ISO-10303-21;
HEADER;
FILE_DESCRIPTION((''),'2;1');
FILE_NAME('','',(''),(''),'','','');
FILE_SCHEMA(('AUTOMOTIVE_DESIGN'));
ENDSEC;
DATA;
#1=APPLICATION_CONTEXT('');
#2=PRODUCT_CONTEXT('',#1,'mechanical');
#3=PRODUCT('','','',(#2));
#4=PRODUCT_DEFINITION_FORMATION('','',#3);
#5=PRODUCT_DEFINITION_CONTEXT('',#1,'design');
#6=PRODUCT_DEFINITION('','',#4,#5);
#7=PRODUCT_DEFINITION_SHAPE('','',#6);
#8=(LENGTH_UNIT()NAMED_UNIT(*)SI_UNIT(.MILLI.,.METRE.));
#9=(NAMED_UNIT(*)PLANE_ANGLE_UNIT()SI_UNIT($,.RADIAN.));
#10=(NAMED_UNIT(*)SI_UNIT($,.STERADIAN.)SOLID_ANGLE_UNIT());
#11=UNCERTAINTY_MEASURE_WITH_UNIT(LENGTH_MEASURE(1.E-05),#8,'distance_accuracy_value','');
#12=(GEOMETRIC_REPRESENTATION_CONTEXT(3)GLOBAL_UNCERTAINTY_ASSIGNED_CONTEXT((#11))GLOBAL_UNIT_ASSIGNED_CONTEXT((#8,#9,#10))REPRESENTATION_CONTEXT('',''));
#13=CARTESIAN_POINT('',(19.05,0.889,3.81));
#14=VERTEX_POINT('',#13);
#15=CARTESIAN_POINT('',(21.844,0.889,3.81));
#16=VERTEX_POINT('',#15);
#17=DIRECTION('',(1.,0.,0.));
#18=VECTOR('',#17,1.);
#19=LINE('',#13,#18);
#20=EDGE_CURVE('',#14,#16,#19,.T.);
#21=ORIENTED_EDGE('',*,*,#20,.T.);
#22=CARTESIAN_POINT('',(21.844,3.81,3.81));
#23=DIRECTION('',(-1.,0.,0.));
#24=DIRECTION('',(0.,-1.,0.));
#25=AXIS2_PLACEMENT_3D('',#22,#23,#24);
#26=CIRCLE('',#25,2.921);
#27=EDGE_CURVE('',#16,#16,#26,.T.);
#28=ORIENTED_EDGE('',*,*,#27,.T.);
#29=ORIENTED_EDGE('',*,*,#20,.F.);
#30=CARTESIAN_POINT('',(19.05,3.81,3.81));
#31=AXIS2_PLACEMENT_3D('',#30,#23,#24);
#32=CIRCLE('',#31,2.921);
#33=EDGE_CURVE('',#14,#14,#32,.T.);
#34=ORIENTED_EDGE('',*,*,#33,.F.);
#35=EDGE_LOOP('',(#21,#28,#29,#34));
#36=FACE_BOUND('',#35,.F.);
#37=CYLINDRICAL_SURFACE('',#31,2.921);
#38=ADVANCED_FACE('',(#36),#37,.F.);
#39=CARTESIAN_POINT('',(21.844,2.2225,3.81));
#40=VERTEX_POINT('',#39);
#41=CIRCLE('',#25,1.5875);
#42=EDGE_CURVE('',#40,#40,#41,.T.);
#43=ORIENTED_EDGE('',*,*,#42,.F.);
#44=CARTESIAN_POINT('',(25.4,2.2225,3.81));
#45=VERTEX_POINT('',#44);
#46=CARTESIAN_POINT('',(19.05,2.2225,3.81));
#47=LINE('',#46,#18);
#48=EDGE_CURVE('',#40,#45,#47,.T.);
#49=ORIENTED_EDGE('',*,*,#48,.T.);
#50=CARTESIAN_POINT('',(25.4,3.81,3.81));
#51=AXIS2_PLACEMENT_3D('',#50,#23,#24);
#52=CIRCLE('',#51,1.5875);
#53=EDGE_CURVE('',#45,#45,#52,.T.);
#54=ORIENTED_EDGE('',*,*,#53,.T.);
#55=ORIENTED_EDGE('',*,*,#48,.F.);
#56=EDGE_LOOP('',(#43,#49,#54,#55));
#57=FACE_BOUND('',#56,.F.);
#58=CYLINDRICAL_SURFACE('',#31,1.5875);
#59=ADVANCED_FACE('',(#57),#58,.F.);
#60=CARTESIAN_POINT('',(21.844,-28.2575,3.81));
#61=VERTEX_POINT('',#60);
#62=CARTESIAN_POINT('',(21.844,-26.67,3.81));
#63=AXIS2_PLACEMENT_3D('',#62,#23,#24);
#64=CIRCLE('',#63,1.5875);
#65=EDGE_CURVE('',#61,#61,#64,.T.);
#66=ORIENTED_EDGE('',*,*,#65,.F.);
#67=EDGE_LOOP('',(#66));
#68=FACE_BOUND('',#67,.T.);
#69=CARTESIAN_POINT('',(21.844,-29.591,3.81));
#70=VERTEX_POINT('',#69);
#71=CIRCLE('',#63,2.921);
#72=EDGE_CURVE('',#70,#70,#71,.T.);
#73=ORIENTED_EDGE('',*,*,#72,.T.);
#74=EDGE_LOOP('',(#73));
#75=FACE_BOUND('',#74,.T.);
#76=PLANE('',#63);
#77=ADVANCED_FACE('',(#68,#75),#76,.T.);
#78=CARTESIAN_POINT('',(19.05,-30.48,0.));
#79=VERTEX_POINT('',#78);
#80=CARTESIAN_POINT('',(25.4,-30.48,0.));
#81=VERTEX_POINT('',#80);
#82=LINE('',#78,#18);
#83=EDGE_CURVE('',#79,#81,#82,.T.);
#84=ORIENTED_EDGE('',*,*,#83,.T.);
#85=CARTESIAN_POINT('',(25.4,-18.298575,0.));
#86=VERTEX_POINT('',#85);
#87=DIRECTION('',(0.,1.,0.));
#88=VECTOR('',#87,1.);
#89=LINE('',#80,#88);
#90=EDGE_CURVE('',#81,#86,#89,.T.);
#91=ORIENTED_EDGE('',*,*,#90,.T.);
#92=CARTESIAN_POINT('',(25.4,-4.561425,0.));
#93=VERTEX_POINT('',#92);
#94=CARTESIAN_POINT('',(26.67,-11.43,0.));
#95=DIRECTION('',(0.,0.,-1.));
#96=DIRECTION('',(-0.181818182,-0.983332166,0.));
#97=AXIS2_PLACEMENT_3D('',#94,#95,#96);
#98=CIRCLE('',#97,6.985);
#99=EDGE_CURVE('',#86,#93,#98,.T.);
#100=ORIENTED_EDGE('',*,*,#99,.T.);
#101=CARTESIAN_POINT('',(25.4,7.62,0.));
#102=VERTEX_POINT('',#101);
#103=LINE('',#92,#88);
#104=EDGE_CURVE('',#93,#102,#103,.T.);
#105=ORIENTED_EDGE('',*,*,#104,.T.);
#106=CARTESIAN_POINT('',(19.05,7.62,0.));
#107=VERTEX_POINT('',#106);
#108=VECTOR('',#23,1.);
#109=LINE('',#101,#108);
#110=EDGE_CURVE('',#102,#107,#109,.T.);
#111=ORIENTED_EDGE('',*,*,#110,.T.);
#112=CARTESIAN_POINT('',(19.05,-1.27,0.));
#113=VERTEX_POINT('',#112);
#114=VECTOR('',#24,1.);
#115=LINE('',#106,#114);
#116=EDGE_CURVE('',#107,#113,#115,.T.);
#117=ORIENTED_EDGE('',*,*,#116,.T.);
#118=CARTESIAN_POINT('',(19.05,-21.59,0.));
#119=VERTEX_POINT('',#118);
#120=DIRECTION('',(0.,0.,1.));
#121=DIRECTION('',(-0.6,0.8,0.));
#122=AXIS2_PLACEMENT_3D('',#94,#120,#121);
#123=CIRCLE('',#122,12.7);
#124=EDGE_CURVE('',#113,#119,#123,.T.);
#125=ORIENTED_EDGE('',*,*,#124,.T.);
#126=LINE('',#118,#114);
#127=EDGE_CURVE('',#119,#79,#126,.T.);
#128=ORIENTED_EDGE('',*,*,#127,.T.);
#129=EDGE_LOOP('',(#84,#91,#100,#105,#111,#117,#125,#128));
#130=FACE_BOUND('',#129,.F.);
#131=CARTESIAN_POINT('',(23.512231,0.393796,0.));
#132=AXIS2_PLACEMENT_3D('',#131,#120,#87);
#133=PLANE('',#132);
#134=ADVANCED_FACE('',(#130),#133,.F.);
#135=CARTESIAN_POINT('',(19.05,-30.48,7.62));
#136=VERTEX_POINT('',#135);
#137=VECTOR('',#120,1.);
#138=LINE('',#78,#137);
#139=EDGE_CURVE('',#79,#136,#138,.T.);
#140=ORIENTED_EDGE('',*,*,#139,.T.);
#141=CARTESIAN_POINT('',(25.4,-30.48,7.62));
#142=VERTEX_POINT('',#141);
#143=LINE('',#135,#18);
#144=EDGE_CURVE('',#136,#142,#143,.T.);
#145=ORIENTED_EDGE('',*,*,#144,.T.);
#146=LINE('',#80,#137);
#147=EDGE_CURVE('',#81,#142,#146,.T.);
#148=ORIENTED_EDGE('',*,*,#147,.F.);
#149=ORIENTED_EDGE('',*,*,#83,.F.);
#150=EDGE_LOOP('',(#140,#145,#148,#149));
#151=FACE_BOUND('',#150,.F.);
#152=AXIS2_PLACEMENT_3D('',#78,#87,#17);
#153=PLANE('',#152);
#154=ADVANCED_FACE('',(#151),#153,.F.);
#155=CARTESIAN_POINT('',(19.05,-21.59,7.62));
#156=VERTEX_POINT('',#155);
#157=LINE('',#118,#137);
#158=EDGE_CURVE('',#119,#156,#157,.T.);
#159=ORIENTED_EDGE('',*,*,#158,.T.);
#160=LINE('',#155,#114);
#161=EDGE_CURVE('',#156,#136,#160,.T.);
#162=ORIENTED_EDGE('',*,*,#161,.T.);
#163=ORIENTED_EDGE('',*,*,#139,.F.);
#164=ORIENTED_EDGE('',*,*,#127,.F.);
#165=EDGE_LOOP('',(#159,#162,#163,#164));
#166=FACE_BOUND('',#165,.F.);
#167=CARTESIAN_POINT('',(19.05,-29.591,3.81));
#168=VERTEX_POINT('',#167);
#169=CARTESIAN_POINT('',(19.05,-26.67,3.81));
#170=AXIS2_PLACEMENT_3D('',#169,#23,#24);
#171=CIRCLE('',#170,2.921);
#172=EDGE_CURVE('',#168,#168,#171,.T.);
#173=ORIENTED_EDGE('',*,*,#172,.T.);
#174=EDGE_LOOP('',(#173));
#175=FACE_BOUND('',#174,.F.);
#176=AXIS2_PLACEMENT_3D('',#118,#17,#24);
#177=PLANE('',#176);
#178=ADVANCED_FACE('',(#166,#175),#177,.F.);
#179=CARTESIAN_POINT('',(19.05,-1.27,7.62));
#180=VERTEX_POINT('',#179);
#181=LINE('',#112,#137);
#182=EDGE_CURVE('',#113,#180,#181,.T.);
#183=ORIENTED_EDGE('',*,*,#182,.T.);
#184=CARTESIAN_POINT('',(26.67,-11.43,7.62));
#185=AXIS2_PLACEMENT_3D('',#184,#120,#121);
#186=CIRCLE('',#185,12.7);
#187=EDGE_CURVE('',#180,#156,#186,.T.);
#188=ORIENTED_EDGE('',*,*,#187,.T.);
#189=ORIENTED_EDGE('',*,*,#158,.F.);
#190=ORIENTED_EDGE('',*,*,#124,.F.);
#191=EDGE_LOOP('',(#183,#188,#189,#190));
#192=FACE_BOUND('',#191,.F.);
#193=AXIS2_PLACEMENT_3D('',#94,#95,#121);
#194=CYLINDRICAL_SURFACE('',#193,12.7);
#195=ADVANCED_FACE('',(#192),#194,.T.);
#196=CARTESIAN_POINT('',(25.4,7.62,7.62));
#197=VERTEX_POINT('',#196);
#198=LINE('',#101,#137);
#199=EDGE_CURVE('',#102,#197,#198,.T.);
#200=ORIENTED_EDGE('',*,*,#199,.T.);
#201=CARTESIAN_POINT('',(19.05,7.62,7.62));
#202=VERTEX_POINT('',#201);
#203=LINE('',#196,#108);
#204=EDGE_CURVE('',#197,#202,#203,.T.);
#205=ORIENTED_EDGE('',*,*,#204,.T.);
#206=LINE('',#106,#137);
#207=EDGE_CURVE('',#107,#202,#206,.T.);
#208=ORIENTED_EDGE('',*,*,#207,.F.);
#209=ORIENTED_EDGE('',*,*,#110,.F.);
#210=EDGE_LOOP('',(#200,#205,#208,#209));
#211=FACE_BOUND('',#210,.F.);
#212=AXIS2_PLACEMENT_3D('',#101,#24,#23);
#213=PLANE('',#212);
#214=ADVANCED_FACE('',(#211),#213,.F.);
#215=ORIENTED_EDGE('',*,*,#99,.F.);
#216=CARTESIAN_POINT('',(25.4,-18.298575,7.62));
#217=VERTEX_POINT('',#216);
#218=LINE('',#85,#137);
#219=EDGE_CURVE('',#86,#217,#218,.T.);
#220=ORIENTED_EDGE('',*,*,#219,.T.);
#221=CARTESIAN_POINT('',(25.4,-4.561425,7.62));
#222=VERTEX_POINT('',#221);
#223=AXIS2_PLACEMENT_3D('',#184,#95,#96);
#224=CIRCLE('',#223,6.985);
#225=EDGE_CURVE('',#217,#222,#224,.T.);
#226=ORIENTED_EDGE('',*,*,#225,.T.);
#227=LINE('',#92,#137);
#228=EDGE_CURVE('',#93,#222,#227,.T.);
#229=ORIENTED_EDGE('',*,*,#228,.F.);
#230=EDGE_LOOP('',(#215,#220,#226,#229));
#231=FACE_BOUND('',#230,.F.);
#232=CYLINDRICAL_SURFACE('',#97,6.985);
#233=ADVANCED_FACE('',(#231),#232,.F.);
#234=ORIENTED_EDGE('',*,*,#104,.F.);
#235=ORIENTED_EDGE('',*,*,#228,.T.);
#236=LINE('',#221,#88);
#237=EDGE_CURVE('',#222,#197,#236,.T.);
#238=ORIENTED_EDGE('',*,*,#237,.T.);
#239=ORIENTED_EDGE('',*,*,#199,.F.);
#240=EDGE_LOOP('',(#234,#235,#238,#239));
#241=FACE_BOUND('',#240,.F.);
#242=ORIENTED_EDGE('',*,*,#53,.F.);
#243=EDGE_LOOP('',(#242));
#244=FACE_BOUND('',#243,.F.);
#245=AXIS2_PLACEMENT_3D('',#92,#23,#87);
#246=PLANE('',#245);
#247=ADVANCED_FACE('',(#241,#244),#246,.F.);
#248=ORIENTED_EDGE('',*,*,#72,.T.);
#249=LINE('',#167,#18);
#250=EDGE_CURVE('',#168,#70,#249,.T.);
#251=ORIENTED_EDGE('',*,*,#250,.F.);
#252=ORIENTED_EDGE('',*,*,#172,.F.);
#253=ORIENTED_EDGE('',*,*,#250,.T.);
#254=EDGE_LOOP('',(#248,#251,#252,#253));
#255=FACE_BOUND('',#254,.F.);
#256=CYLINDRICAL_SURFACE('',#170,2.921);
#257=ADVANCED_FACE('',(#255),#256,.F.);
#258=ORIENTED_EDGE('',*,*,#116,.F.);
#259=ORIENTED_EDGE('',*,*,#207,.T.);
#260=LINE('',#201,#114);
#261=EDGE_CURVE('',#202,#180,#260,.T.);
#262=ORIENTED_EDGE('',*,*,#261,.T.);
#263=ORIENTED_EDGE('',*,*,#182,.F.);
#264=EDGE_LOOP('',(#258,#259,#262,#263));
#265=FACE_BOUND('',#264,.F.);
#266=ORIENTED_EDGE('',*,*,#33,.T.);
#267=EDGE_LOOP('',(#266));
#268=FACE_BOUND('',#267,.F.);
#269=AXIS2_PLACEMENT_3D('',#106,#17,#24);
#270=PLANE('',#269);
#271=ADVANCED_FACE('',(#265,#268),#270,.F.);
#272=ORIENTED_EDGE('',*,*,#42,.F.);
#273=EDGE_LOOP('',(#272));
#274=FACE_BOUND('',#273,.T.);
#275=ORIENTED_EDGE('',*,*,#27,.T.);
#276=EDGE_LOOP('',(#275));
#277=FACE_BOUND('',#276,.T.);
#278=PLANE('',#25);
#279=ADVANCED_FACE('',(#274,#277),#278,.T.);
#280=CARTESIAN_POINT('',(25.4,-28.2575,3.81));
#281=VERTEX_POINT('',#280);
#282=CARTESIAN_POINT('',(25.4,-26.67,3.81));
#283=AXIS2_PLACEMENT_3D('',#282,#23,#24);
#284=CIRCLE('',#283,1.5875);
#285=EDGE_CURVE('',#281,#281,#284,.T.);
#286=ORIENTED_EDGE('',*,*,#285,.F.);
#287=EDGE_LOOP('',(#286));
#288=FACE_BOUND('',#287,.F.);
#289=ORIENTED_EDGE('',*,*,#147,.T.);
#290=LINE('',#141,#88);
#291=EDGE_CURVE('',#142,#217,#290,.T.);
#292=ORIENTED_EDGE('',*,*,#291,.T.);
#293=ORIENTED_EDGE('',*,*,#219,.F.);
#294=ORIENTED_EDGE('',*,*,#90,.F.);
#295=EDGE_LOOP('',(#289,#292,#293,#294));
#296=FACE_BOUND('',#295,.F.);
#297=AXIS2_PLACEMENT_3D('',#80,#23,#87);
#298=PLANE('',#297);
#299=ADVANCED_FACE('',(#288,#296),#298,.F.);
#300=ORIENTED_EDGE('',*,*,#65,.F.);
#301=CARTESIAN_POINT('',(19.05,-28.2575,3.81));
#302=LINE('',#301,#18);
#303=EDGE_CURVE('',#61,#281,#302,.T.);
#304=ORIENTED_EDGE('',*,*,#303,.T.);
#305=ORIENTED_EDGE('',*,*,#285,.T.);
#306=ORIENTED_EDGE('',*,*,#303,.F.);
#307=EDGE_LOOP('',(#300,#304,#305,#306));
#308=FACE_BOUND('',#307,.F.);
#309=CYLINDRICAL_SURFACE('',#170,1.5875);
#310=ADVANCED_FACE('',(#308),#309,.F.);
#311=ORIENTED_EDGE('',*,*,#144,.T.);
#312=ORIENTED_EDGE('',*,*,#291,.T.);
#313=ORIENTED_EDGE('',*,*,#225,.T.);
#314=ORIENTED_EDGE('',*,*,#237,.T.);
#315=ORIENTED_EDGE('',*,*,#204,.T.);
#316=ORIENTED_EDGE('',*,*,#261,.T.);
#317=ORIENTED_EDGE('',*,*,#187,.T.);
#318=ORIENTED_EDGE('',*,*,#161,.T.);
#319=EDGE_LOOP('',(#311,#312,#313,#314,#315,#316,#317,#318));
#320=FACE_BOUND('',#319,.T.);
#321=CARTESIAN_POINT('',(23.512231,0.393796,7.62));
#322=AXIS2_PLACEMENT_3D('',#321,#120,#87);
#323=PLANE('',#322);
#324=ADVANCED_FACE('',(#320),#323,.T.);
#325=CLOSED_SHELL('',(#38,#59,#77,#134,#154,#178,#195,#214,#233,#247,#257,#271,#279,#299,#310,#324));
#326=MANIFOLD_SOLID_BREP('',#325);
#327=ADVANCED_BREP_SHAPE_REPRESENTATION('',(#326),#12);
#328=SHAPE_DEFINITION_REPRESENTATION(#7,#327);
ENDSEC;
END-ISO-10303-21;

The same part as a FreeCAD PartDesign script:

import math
import FreeCAD as App
import Part
import Sketcher

V = App.Vector
Q = App.Units.Quantity

doc = App.newDocument("Part")
body = doc.addObject("PartDesign::Body", "Body")

# Sketch on XY plane
sketch1 = body.newObject("Sketcher::SketchObject", "Sketch")
sketch1.AttachmentSupport = (doc.getObject("XY_Plane"), [""])
sketch1.MapMode = "FlatFace"
sketch1.addGeometry([
    Part.LineSegment(V(19.05, 1.27, 0), V(19.05, 7.62, 0)),  # 0
    Part.LineSegment(V(19.05, 7.62, 0), V(10.16, 7.62, 0)),  # 1
    Part.ArcOfCircle(Part.Circle(V(0, 0, 0), V(0, 0, 1), 12.7), math.radians(36.869898), math.radians(143.130102)),  # 2
    Part.LineSegment(V(-10.16, 7.62, 0), V(-19.05, 7.62, 0)),  # 3
    Part.LineSegment(V(-19.05, 7.62, 0), V(-19.05, 1.27, 0)),  # 4
    Part.LineSegment(V(-19.05, 1.27, 0), V(-6.868575, 1.27, 0)),  # 5
    Part.ArcOfCircle(Part.Circle(V(0, 0, 0), V(0, 0, 1), 6.985), math.radians(10.475682), math.radians(169.524318)),  # 6
    Part.LineSegment(V(6.868575, 1.27, 0), V(19.05, 1.27, 0)),  # 7
], False)
sketch1.addConstraint([
    Sketcher.Constraint("Coincident", 0, 2, 1, 1),
    Sketcher.Constraint("Coincident", 1, 2, 2, 1),
    Sketcher.Constraint("Coincident", 2, 2, 3, 1),
    Sketcher.Constraint("Coincident", 3, 2, 4, 1),
    Sketcher.Constraint("Coincident", 4, 2, 5, 1),
    Sketcher.Constraint("Coincident", 5, 2, 6, 2),
    Sketcher.Constraint("Coincident", 6, 1, 7, 1),
    Sketcher.Constraint("Coincident", 7, 2, 0, 1),
    Sketcher.Constraint("Vertical", 0),
    Sketcher.Constraint("Horizontal", 1),
    Sketcher.Constraint("Horizontal", 3),
    Sketcher.Constraint("Vertical", 4),
    Sketcher.Constraint("Horizontal", 5),
    Sketcher.Constraint("Horizontal", 7),
    Sketcher.Constraint("Coincident", 2, 3, -1, 1),
    Sketcher.Constraint("Coincident", 6, 3, -1, 1),
    Sketcher.Constraint("Symmetric", 0, 2, 3, 2, -2),
    Sketcher.Constraint("Horizontal", 5, 2, 6, 1),
    Sketcher.Constraint("Radius", 2, Q("0.5 in")),
    Sketcher.Constraint("Radius", 6, Q("0.275 in")),
    Sketcher.Constraint("DistanceX", 1, 2, 1, 1, Q("0.35 in")),
    Sketcher.Constraint("DistanceY", 0, 1, 0, 2, Q("0.25 in")),
    Sketcher.Constraint("DistanceY", -1, 1, 0, 2, Q("0.3 in")),
])
pad1 = body.newObject("PartDesign::Pad", "Pad")
pad1.Profile = sketch1
pad1.Length = Q("0.3 in")

# Sketch on XZ plane
sketch2 = body.newObject("Sketcher::SketchObject", "Sketch001")
sketch2.AttachmentSupport = (doc.getObject("XZ_Plane"), [""])
sketch2.MapMode = "FlatFace"
sketch2.AttachmentOffset = App.Placement(V(0, 0, -0.3 * 25.4), App.Rotation())
sketch2.addGeometry([
    Part.Circle(V(15.24, 3.81, 0), V(0, 0, 1), 1.5875),
    Part.Circle(V(-15.24, 3.81, 0), V(0, 0, 1), 1.5875),
], False)
sketch2.addConstraint([
    Sketcher.Constraint("Equal", 0, 1),
    Sketcher.Constraint("Symmetric", 0, 3, 1, 3, -2),
    Sketcher.Constraint("Diameter", 0, Q("0.125 in")),
    Sketcher.Constraint("DistanceX", -1, 1, 0, 3, Q("0.6 in")),
    Sketcher.Constraint("DistanceY", -1, 1, 0, 3, Q("0.15 in")),
])
pocket1 = body.newObject("PartDesign::Pocket", "Pocket")
pocket1.Profile = sketch2
pocket1.Length = Q("1 in")
pocket1.Reversed = True

# Sketch on XZ plane
sketch3 = body.newObject("Sketcher::SketchObject", "Sketch002")
sketch3.AttachmentSupport = (doc.getObject("XZ_Plane"), [""])
sketch3.MapMode = "FlatFace"
sketch3.AttachmentOffset = App.Placement(V(0, 0, -0.3 * 25.4), App.Rotation())
sketch3.addGeometry([
    Part.Circle(V(15.24, 3.81, 0), V(0, 0, 1), 2.921),
    Part.Circle(V(15.24, 3.81, 0), V(0, 0, 1), 1.5875),
    Part.Circle(V(-15.24, 3.81, 0), V(0, 0, 1), 2.921),
    Part.Circle(V(-15.24, 3.81, 0), V(0, 0, 1), 1.5875),
], False)
sketch3.addConstraint([
    Sketcher.Constraint("Coincident", 1, 3, 0, 3),
    Sketcher.Constraint("Coincident", 3, 3, 2, 3),
    Sketcher.Constraint("Equal", 0, 2),
    Sketcher.Constraint("Equal", 1, 3),
    Sketcher.Constraint("Symmetric", 0, 3, 2, 3, -2),
    Sketcher.Constraint("Diameter", 0, Q("0.23 in")),
    Sketcher.Constraint("Diameter", 1, Q("0.125 in")),
    Sketcher.Constraint("DistanceX", -1, 1, 0, 3, Q("0.6 in")),
    Sketcher.Constraint("DistanceY", -1, 1, 0, 3, Q("0.15 in")),
])
pocket2 = body.newObject("PartDesign::Pocket", "Pocket001")
pocket2.Profile = sketch3
pocket2.Length = Q("0.11 in")
pocket2.Reversed = True
body2 = doc.addObject("PartDesign::Body", "Body001")
doc.recompute()

body.Placement = App.Placement(V(26.67, -11.43, 0), App.Rotation(V(0, 0, -1), 270))
boolean = body2.newObject("PartDesign::Boolean", "Boolean")
boolean.Type = "Fuse"
boolean.addObjects([body])

doc.recompute()
